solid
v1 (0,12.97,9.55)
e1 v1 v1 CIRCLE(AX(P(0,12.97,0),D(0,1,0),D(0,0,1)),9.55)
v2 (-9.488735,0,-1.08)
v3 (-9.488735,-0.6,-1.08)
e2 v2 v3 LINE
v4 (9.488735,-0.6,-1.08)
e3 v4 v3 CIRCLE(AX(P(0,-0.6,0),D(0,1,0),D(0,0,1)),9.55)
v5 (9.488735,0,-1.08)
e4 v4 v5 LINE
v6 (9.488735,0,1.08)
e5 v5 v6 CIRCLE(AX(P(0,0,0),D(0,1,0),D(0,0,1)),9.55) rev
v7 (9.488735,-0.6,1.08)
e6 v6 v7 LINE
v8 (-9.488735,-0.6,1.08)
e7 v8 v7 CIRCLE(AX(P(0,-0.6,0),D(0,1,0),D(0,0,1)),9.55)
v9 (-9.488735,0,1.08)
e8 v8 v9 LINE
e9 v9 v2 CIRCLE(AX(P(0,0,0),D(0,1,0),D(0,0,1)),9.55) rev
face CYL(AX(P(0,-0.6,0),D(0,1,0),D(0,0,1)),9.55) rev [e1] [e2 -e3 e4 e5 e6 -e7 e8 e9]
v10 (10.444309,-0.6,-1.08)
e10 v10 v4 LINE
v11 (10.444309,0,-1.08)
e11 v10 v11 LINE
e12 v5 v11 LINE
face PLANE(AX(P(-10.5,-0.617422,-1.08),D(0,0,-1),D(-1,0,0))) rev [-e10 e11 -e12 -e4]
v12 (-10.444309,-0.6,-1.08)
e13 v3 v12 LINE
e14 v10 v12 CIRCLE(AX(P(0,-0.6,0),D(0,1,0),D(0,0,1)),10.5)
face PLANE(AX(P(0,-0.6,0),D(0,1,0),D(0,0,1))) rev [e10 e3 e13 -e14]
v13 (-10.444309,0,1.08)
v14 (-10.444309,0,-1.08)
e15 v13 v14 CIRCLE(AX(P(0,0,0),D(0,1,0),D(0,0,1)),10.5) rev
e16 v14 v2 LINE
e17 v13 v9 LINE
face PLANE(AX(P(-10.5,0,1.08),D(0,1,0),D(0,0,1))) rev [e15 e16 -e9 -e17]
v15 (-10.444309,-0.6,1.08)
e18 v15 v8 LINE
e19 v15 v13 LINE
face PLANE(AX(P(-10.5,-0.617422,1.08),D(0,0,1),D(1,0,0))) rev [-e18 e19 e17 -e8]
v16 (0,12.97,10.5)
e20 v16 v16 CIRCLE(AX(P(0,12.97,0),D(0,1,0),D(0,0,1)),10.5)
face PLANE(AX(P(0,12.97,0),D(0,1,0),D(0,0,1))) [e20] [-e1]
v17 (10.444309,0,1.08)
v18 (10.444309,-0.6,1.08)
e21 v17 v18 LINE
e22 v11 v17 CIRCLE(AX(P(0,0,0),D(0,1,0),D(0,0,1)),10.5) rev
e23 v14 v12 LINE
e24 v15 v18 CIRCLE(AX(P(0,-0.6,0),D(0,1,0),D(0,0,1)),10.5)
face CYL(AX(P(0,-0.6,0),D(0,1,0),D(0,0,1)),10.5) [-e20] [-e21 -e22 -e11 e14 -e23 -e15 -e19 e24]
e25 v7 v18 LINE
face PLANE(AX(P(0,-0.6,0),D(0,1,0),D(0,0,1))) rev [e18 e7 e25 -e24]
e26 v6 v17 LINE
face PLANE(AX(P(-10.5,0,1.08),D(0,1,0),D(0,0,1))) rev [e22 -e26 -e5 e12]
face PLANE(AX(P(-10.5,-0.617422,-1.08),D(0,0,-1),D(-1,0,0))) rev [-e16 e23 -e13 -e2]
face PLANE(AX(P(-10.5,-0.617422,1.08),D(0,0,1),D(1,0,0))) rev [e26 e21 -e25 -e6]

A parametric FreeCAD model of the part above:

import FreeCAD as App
import Part
import Sketcher

V = App.Vector
Q = App.Units.Quantity


def add_polygon(sketch, points):
    """Adds a closed chain of lines whose ends are joined by coincident constraints."""
    first, n = sketch.GeometryCount, len(points)
    for a, b in zip(points, points[1:] + points[:1]):
        sketch.addGeometry(Part.LineSegment(App.Vector(*a, 0), App.Vector(*b, 0)), False)
    for i in range(n):
        sketch.addConstraint(Sketcher.Constraint("Coincident", first + i, 2, first + (i + 1) % n, 1))

doc = App.newDocument("Part")
body = doc.addObject("PartDesign::Body", "Body")

# Sketch on XZ plane
sketch1 = body.newObject("Sketcher::SketchObject", "Sketch")
sketch1.AttachmentSupport = (doc.getObject("XZ_Plane"), [""])
sketch1.MapMode = "FlatFace"
sketch1.addGeometry(Part.Circle(V(0, 0, 0), V(0, 0, 1), 10), False)
sketch1.addGeometry(Part.Circle(V(0, 0, 0), V(0, 0, 1), 10), False)
sketch1.addConstraint(Sketcher.Constraint("Coincident", 0, 3, -1, 1))
sketch1.addConstraint(Sketcher.Constraint("Coincident", 1, 3, -1, 1))
sketch1.addConstraint(Sketcher.Constraint("Diameter", 0, Q("21 mm")))
sketch1.addConstraint(Sketcher.Constraint("Diameter", 1, Q("19.1 mm")))
pad1 = body.newObject("PartDesign::Pad", "Pad")
pad1.Profile = sketch1
pad1.Type = "TwoLengths"
pad1.Length = 12.97
pad1.Length2 = 0.6
pad1.Reversed = True

# Sketch on YZ plane
sketch2 = body.newObject("Sketcher::SketchObject", "Sketch001")
sketch2.AttachmentSupport = (doc.getObject("YZ_Plane"), [""])
sketch2.MapMode = "FlatFace"
add_polygon(sketch2, [(0, 1.1), (-0.6, 1.1), (-0.6, -1.1), (0, -1.1)])  # lines 0-3
sketch2.addConstraint(Sketcher.Constraint("Horizontal", 0))
sketch2.addConstraint(Sketcher.Constraint("Vertical", 1))
sketch2.addConstraint(Sketcher.Constraint("Horizontal", 2))
sketch2.addConstraint(Sketcher.Constraint("Vertical", 3))
sketch2.addConstraint(Sketcher.Constraint("Symmetric", 2, 2, 3, 2, -1, 1))
sketch2.addConstraint(Sketcher.Constraint("DistanceY", 1, 2, 1, 1, Q("2.16 mm")))
sketch2.addConstraint(Sketcher.Constraint("DistanceX", 0, 2, 0, 1, Q("0.617422 mm")))
pocket1 = body.newObject("PartDesign::Pocket", "Pocket")
pocket1.Profile = sketch2
pocket1.Type = "ThroughAll"
pocket1.Midplane = True

doc.recompute()
